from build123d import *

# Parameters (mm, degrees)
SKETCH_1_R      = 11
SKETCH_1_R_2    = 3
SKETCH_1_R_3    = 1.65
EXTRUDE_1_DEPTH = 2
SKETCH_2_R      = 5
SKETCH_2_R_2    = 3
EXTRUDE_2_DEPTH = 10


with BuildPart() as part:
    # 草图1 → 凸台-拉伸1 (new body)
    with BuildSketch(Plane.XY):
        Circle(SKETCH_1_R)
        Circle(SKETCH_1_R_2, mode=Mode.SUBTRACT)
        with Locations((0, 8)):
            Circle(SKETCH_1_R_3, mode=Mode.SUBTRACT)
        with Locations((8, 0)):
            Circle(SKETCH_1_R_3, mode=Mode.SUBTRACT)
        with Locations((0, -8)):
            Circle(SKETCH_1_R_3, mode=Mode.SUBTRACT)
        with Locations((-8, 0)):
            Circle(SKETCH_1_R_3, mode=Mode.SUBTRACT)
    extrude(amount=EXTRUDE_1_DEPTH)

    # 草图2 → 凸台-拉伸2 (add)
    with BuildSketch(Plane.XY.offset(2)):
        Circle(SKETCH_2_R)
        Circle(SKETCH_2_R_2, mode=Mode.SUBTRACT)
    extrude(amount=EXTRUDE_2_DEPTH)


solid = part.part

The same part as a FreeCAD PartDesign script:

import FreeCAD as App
import Part
import Sketcher
from FreeCAD import Vector
Q = App.Units.Quantity

doc = App.newDocument("Part")
params = doc.addObject("Spreadsheet::Sheet", "Params")
for row, (alias, value) in enumerate([
    ("sketch1_diameter", "22 mm"),
    ("sketch1_diameter2", "6 mm"),
    ("sketch1_diameter3", "3.3 mm"),
    ("pad1_length", "2 mm"),
    ("sketch2_diameter", "10 mm"),
    ("sketch2_diameter2", "6 mm"),
    ("pad2_length", "10 mm"),
], start=1):
    params.set(f"A{row}", alias)
    params.set(f"B{row}", "=" + value)
    params.setAlias(f"B{row}", alias)

body = doc.addObject("PartDesign::Body", "Body")

sketch1 = body.newObject("Sketcher::SketchObject", "Sketch")
sketch1.AttachmentSupport = (doc.getObject("XY_Plane"), [""])
sketch1.MapMode = "FlatFace"
sketch1.addGeometry([
    Part.Circle(Vector(0, 0, 0), Vector(0, 0, 1), 11),
    Part.Circle(Vector(0, -8, 0), Vector(0, 0, 1), 1.6),
    Part.Circle(Vector(-8, 0, 0), Vector(0, 0, 1), 1.6),
    Part.Circle(Vector(0, 0, 0), Vector(0, 0, 1), 3),
    Part.Circle(Vector(8, 0, 0), Vector(0, 0, 1), 1.6),
    Part.Circle(Vector(0, 8, 0), Vector(0, 0, 1), 1.6),
], False)
sketch1.addConstraint([
    Sketcher.Constraint("Coincident", 0, 3, -1, 1),
    Sketcher.Constraint("Coincident", 3, 3, -1, 1),
    Sketcher.Constraint("Equal", 1, 2),
    Sketcher.Constraint("Equal", 2, 4),
    Sketcher.Constraint("Equal", 4, 5),
    Sketcher.Constraint("Symmetric", 2, 3, 4, 3, -1, 1),
    Sketcher.Constraint("Symmetric", 1, 3, 5, 3, -1, 1),
    Sketcher.Constraint("PointOnObject", 1, 3, -2),
    Sketcher.Constraint("PointOnObject", 2, 3, -1),
    Sketcher.Constraint("Diameter", 0, Q("22 mm")),
    Sketcher.Constraint("Diameter", 3, Q("6 mm")),
    Sketcher.Constraint("Diameter", 1, Q("3.3 mm")),
    Sketcher.Constraint("DistanceY", 1, 3, -1, 1, Q("8 mm")),
    Sketcher.Constraint("DistanceX", 2, 3, -1, 1, Q("8 mm")),
])
sketch1.setExpression("Constraints[9]", "Params.sketch1_diameter")
sketch1.setExpression("Constraints[10]", "Params.sketch1_diameter2")
sketch1.setExpression("Constraints[11]", "Params.sketch1_diameter3")
pad1 = body.newObject("PartDesign::Pad", "Pad")
pad1.Profile = sketch1
pad1.setExpression("Length", "Params.pad1_length")

sketch2 = body.newObject("Sketcher::SketchObject", "Sketch001")
sketch2.AttachmentSupport = (doc.getObject("XY_Plane"), [""])
sketch2.MapMode = "FlatFace"
sketch2.AttachmentOffset = App.Placement(Vector(0, 0, 2), App.Rotation())
sketch2.addGeometry([
    Part.Circle(Vector(0, 0, 0), Vector(0, 0, 1), 5),
    Part.Circle(Vector(0, 0, 0), Vector(0, 0, 1), 3),
], False)
sketch2.addConstraint([
    Sketcher.Constraint("Coincident", 0, 3, -1, 1),
    Sketcher.Constraint("Coincident", 1, 3, -1, 1),
    Sketcher.Constraint("Diameter", 0, Q("10 mm")),
    Sketcher.Constraint("Diameter", 1, Q("6 mm")),
])
sketch2.setExpression("Constraints[2]", "Params.sketch2_diameter")
sketch2.setExpression("Constraints[3]", "Params.sketch2_diameter2")
pad2 = body.newObject("PartDesign::Pad", "Pad001")
pad2.Profile = sketch2
pad2.setExpression("Length", "Params.pad2_length")

doc.recompute()
